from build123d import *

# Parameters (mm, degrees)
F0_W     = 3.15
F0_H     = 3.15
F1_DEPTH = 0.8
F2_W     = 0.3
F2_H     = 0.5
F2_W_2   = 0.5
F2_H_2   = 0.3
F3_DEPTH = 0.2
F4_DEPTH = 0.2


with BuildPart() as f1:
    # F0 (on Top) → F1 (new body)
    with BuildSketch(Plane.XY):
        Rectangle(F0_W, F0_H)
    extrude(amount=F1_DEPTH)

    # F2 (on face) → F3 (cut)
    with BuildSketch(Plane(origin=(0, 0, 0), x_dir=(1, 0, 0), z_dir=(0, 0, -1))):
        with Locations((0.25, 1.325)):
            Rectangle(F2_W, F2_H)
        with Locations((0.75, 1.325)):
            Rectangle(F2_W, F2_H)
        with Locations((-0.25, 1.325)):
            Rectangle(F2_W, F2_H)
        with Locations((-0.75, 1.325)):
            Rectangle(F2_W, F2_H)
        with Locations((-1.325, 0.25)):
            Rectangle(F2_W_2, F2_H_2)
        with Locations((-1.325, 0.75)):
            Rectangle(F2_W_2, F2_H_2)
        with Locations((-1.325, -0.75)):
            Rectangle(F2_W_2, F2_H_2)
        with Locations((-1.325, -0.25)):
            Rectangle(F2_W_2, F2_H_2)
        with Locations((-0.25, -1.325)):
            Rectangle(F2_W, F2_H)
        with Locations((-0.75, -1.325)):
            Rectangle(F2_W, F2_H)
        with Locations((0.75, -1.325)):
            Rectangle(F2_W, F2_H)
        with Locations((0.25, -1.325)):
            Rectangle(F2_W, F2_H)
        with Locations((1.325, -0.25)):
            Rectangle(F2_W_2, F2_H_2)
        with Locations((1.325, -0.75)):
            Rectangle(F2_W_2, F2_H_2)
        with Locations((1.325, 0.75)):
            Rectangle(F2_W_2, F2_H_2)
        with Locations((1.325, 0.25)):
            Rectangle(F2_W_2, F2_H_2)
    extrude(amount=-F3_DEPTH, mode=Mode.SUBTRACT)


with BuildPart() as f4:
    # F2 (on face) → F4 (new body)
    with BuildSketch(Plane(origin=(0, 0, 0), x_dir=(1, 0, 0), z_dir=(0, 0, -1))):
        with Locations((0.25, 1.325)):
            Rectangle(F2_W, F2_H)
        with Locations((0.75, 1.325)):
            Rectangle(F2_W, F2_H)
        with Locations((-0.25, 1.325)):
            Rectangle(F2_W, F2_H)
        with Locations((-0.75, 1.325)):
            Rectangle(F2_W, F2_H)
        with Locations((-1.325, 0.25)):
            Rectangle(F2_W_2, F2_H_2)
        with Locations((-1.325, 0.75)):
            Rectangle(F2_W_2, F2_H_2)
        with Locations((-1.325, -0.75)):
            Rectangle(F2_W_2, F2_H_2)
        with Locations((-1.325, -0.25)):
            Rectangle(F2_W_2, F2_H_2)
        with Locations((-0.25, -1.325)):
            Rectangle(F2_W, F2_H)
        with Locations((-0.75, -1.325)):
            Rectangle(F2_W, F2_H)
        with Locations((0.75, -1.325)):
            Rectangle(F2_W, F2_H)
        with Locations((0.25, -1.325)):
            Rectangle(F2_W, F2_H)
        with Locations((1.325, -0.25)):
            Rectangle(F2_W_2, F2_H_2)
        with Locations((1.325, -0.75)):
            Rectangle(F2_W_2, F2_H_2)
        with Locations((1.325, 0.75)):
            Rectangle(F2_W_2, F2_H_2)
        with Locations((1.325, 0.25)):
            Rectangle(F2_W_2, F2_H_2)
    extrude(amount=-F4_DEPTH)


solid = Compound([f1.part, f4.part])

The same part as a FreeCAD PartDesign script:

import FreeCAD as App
import Part
import Sketcher

doc = App.newDocument("Part")
body = doc.addObject("PartDesign::Body", "Body")

# Sketch on XY plane
sketch1 = body.newObject("Sketcher::SketchObject", "Sketch")
sketch1.AttachmentSupport = (doc.getObject("XY_Plane"), [""])
sketch1.MapMode = "FlatFace"
sketch1.addGeometry([
    Part.LineSegment(App.Vector(-1.6, 1.6, 0), App.Vector(-1.6, -1.6, 0)),
    Part.LineSegment(App.Vector(-1.6, -1.6, 0), App.Vector(1.6, -1.6, 0)),
    Part.LineSegment(App.Vector(1.6, -1.6, 0), App.Vector(1.6, 1.6, 0)),
    Part.LineSegment(App.Vector(1.6, 1.6, 0), App.Vector(-1.6, 1.6, 0)),
], False)
sketch1.addConstraint([
    Sketcher.Constraint("Coincident", 0, 2, 1, 1),
    Sketcher.Constraint("Coincident", 1, 2, 2, 1),
    Sketcher.Constraint("Coincident", 2, 2, 3, 1),
    Sketcher.Constraint("Coincident", 3, 2, 0, 1),
    Sketcher.Constraint("Vertical", 0),
    Sketcher.Constraint("Horizontal", 1),
    Sketcher.Constraint("Vertical", 2),
    Sketcher.Constraint("Horizontal", 3),
    Sketcher.Constraint("Symmetric", 0, 2, 2, 2, -1, 1),
    Sketcher.Constraint("Equal", 3, 0),
    Sketcher.Constraint("DistanceX", 1, 1, 1, 2, 3.15),
])
pad1 = body.newObject("PartDesign::Pad", "Pad")
pad1.Profile = sketch1
pad1.Length = 0.8

# Sketch on XY plane
sketch2 = body.newObject("Sketcher::SketchObject", "Sketch001")
sketch2.AttachmentSupport = (doc.getObject("XY_Plane"), [""])
sketch2.MapMode = "FlatFace"
sketch2.addGeometry([
    Part.LineSegment(App.Vector(0.1, -1.57, 0), App.Vector(0.1, -1.07, 0)),  # 0
    Part.LineSegment(App.Vector(0.1, -1.07, 0), App.Vector(0.4, -1.07, 0)),  # 1
    Part.LineSegment(App.Vector(0.4, -1.07, 0), App.Vector(0.4, -1.57, 0)),  # 2
    Part.LineSegment(App.Vector(0.4, -1.57, 0), App.Vector(0.1, -1.57, 0)),  # 3
    Part.LineSegment(App.Vector(0.6, -1.57, 0), App.Vector(0.6, -1.07, 0)),  # 4
    Part.LineSegment(App.Vector(0.6, -1.07, 0), App.Vector(0.9, -1.07, 0)),  # 5
    Part.LineSegment(App.Vector(0.9, -1.07, 0), App.Vector(0.9, -1.57, 0)),  # 6
    Part.LineSegment(App.Vector(0.9, -1.57, 0), App.Vector(0.6, -1.57, 0)),  # 7
    Part.LineSegment(App.Vector(-0.4, -1.57, 0), App.Vector(-0.4, -1.07, 0)),  # 8
    Part.LineSegment(App.Vector(-0.4, -1.07, 0), App.Vector(-0.1, -1.07, 0)),  # 9
    Part.LineSegment(App.Vector(-0.1, -1.07, 0), App.Vector(-0.1, -1.57, 0)),  # 10
    Part.LineSegment(App.Vector(-0.1, -1.57, 0), App.Vector(-0.4, -1.57, 0)),  # 11
    Part.LineSegment(App.Vector(-0.9, -1.57, 0), App.Vector(-0.9, -1.07, 0)),  # 12
    Part.LineSegment(App.Vector(-0.9, -1.07, 0), App.Vector(-0.6, -1.07, 0)),  # 13
    Part.LineSegment(App.Vector(-0.6, -1.07, 0), App.Vector(-0.6, -1.57, 0)),  # 14
    Part.LineSegment(App.Vector(-0.6, -1.57, 0), App.Vector(-0.9, -1.57, 0)),  # 15
    Part.LineSegment(App.Vector(-1.57, -0.4, 0), App.Vector(-1.57, -0.1, 0)),  # 16
    Part.LineSegment(App.Vector(-1.57, -0.1, 0), App.Vector(-1.07, -0.1, 0)),  # 17
    Part.LineSegment(App.Vector(-1.07, -0.1, 0), App.Vector(-1.07, -0.4, 0)),  # 18
    Part.LineSegment(App.Vector(-1.07, -0.4, 0), App.Vector(-1.57, -0.4, 0)),  # 19
    Part.LineSegment(App.Vector(-1.57, -0.9, 0), App.Vector(-1.57, -0.6, 0)),  # 20
    Part.LineSegment(App.Vector(-1.57, -0.6, 0), App.Vector(-1.07, -0.6, 0)),  # 21
    Part.LineSegment(App.Vector(-1.07, -0.6, 0), App.Vector(-1.07, -0.9, 0)),  # 22
    Part.LineSegment(App.Vector(-1.07, -0.9, 0), App.Vector(-1.57, -0.9, 0)),  # 23
    Part.LineSegment(App.Vector(-1.57, 0.6, 0), App.Vector(-1.57, 0.9, 0)),  # 24
    Part.LineSegment(App.Vector(-1.57, 0.9, 0), App.Vector(-1.07, 0.9, 0)),  # 25
    Part.LineSegment(App.Vector(-1.07, 0.9, 0), App.Vector(-1.07, 0.6, 0)),  # 26
    Part.LineSegment(App.Vector(-1.07, 0.6, 0), App.Vector(-1.57, 0.6, 0)),  # 27
    Part.LineSegment(App.Vector(-1.57, 0.1, 0), App.Vector(-1.57, 0.4, 0)),  # 28
    Part.LineSegment(App.Vector(-1.57, 0.4, 0), App.Vector(-1.07, 0.4, 0)),  # 29
    Part.LineSegment(App.Vector(-1.07, 0.4, 0), App.Vector(-1.07, 0.1, 0)),  # 30
    Part.LineSegment(App.Vector(-1.07, 0.1, 0), App.Vector(-1.57, 0.1, 0)),  # 31
    Part.LineSegment(App.Vector(-0.4, 1.07, 0), App.Vector(-0.4, 1.57, 0)),  # 32
    Part.LineSegment(App.Vector(-0.4, 1.57, 0), App.Vector(-0.1, 1.57, 0)),  # 33
    Part.LineSegment(App.Vector(-0.1, 1.57, 0), App.Vector(-0.1, 1.07, 0)),  # 34
    Part.LineSegment(App.Vector(-0.1, 1.07, 0), App.Vector(-0.4, 1.07, 0)),  # 35
    Part.LineSegment(App.Vector(-0.9, 1.07, 0), App.Vector(-0.9, 1.57, 0)),  # 36
    Part.LineSegment(App.Vector(-0.9, 1.57, 0), App.Vector(-0.6, 1.57, 0)),  # 37
    Part.LineSegment(App.Vector(-0.6, 1.57, 0), App.Vector(-0.6, 1.07, 0)),  # 38
    Part.LineSegment(App.Vector(-0.6, 1.07, 0), App.Vector(-0.9, 1.07, 0)),  # 39
    Part.LineSegment(App.Vector(0.6, 1.07, 0), App.Vector(0.6, 1.57, 0)),  # 40
    Part.LineSegment(App.Vector(0.6, 1.57, 0), App.Vector(0.9, 1.57, 0)),  # 41
    Part.LineSegment(App.Vector(0.9, 1.57, 0), App.Vector(0.9, 1.07, 0)),  # 42
    Part.LineSegment(App.Vector(0.9, 1.07, 0), App.Vector(0.6, 1.07, 0)),  # 43
    Part.LineSegment(App.Vector(0.1, 1.07, 0), App.Vector(0.1, 1.57, 0)),  # 44
    Part.LineSegment(App.Vector(0.1, 1.57, 0), App.Vector(0.4, 1.57, 0)),  # 45
    Part.LineSegment(App.Vector(0.4, 1.57, 0), App.Vector(0.4, 1.07, 0)),  # 46
    Part.LineSegment(App.Vector(0.4, 1.07, 0), App.Vector(0.1, 1.07, 0)),  # 47
    Part.LineSegment(App.Vector(1.07, 0.1, 0), App.Vector(1.07, 0.4, 0)),  # 48
    Part.LineSegment(App.Vector(1.07, 0.4, 0), App.Vector(1.57, 0.4, 0)),  # 49
    Part.LineSegment(App.Vector(1.57, 0.4, 0), App.Vector(1.57, 0.1, 0)),  # 50
    Part.LineSegment(App.Vector(1.57, 0.1, 0), App.Vector(1.07, 0.1, 0)),  # 51
    Part.LineSegment(App.Vector(1.07, 0.6, 0), App.Vector(1.07, 0.9, 0)),  # 52
    Part.LineSegment(App.Vector(1.07, 0.9, 0), App.Vector(1.57, 0.9, 0)),  # 53
    Part.LineSegment(App.Vector(1.57, 0.9, 0), App.Vector(1.57, 0.6, 0)),  # 54
    Part.LineSegment(App.Vector(1.57, 0.6, 0), App.Vector(1.07, 0.6, 0)),  # 55
    Part.LineSegment(App.Vector(1.07, -0.9, 0), App.Vector(1.07, -0.6, 0)),  # 56
    Part.LineSegment(App.Vector(1.07, -0.6, 0), App.Vector(1.57, -0.6, 0)),  # 57
    Part.LineSegment(App.Vector(1.57, -0.6, 0), App.Vector(1.57, -0.9, 0)),  # 58
    Part.LineSegment(App.Vector(1.57, -0.9, 0), App.Vector(1.07, -0.9, 0)),  # 59
    Part.LineSegment(App.Vector(1.07, -0.4, 0), App.Vector(1.07, -0.1, 0)),  # 60
    Part.LineSegment(App.Vector(1.07, -0.1, 0), App.Vector(1.57, -0.1, 0)),  # 61
    Part.LineSegment(App.Vector(1.57, -0.1, 0), App.Vector(1.57, -0.4, 0)),  # 62
    Part.LineSegment(App.Vector(1.57, -0.4, 0), App.Vector(1.07, -0.4, 0)),  # 63
], False)
sketch2.addConstraint([
    Sketcher.Constraint("Coincident", 0, 2, 1, 1),
    Sketcher.Constraint("Coincident", 1, 2, 2, 1),
    Sketcher.Constraint("Coincident", 2, 2, 3, 1),
    Sketcher.Constraint("Coincident", 3, 2, 0, 1),
    Sketcher.Constraint("Coincident", 4, 2, 5, 1),
    Sketcher.Constraint("Coincident", 5, 2, 6, 1),
    Sketcher.Constraint("Coincident", 6, 2, 7, 1),
    Sketcher.Constraint("Coincident", 7, 2, 4, 1),
    Sketcher.Constraint("Coincident", 8, 2, 9, 1),
    Sketcher.Constraint("Coincident", 9, 2, 10, 1),
    Sketcher.Constraint("Coincident", 10, 2, 11, 1),
    Sketcher.Constraint("Coincident", 11, 2, 8, 1),
    Sketcher.Constraint("Coincident", 12, 2, 13, 1),
    Sketcher.Constraint("Coincident", 13, 2, 14, 1),
    Sketcher.Constraint("Coincident", 14, 2, 15, 1),
    Sketcher.Constraint("Coincident", 15, 2, 12, 1),
    Sketcher.Constraint("Coincident", 16, 2, 17, 1),
    Sketcher.Constraint("Coincident", 17, 2, 18, 1),
    Sketcher.Constraint("Coincident", 18, 2, 19, 1),
    Sketcher.Constraint("Coincident", 19, 2, 16, 1),
    Sketcher.Constraint("Coincident", 20, 2, 21, 1),
    Sketcher.Constraint("Coincident", 21, 2, 22, 1),
    Sketcher.Constraint("Coincident", 22, 2, 23, 1),
    Sketcher.Constraint("Coincident", 23, 2, 20, 1),
    Sketcher.Constraint("Coincident", 24, 2, 25, 1),
    Sketcher.Constraint("Coincident", 25, 2, 26, 1),
    Sketcher.Constraint("Coincident", 26, 2, 27, 1),
    Sketcher.Constraint("Coincident", 27, 2, 24, 1),
    Sketcher.Constraint("Coincident", 28, 2, 29, 1),
    Sketcher.Constraint("Coincident", 29, 2, 30, 1),
    Sketcher.Constraint("Coincident", 30, 2, 31, 1),
    Sketcher.Constraint("Coincident", 31, 2, 28, 1),
    Sketcher.Constraint("Coincident", 32, 2, 33, 1),
    Sketcher.Constraint("Coincident", 33, 2, 34, 1),
    Sketcher.Constraint("Coincident", 34, 2, 35, 1),
    Sketcher.Constraint("Coincident", 35, 2, 32, 1),
    Sketcher.Constraint("Coincident", 36, 2, 37, 1),
    Sketcher.Constraint("Coincident", 37, 2, 38, 1),
    Sketcher.Constraint("Coincident", 38, 2, 39, 1),
    Sketcher.Constraint("Coincident", 39, 2, 36, 1),
    Sketcher.Constraint("Coincident", 40, 2, 41, 1),
    Sketcher.Constraint("Coincident", 41, 2, 42, 1),
    Sketcher.Constraint("Coincident", 42, 2, 43, 1),
    Sketcher.Constraint("Coincident", 43, 2, 40, 1),
    Sketcher.Constraint("Coincident", 44, 2, 45, 1),
    Sketcher.Constraint("Coincident", 45, 2, 46, 1),
    Sketcher.Constraint("Coincident", 46, 2, 47, 1),
    Sketcher.Constraint("Coincident", 47, 2, 44, 1),
    Sketcher.Constraint("Coincident", 48, 2, 49, 1),
    Sketcher.Constraint("Coincident", 49, 2, 50, 1),
    Sketcher.Constraint("Coincident", 50, 2, 51, 1),
    Sketcher.Constraint("Coincident", 51, 2, 48, 1),
    Sketcher.Constraint("Coincident", 52, 2, 53, 1),
    Sketcher.Constraint("Coincident", 53, 2, 54, 1),
    Sketcher.Constraint("Coincident", 54, 2, 55, 1),
    Sketcher.Constraint("Coincident", 55, 2, 52, 1),
    Sketcher.Constraint("Coincident", 56, 2, 57, 1),
    Sketcher.Constraint("Coincident", 57, 2, 58, 1),
    Sketcher.Constraint("Coincident", 58, 2, 59, 1),
    Sketcher.Constraint("Coincident", 59, 2, 56, 1),
    Sketcher.Constraint("Coincident", 60, 2, 61, 1),
    Sketcher.Constraint("Coincident", 61, 2, 62, 1),
    Sketcher.Constraint("Coincident", 62, 2, 63, 1),
    Sketcher.Constraint("Coincident", 63, 2, 60, 1),
    Sketcher.Constraint("Vertical", 0),
    Sketcher.Constraint("Horizontal", 1),
    Sketcher.Constraint("Vertical", 2),
    Sketcher.Constraint("Horizontal", 3),
    Sketcher.Constraint("Vertical", 4),
    Sketcher.Constraint("Horizontal", 5),
    Sketcher.Constraint("Vertical", 6),
    Sketcher.Constraint("Horizontal", 7),
    Sketcher.Constraint("Vertical", 8),
    Sketcher.Constraint("Horizontal", 9),
    Sketcher.Constraint("Vertical", 10),
    Sketcher.Constraint("Horizontal", 11),
    Sketcher.Constraint("Vertical", 12),
    Sketcher.Constraint("Horizontal", 13),
    Sketcher.Constraint("Vertical", 14),
    Sketcher.Constraint("Horizontal", 15),
    Sketcher.Constraint("Vertical", 16),
    Sketcher.Constraint("Horizontal", 17),
    Sketcher.Constraint("Vertical", 18),
    Sketcher.Constraint("Horizontal", 19),
    Sketcher.Constraint("Vertical", 20),
    Sketcher.Constraint("Horizontal", 21),
    Sketcher.Constraint("Vertical", 22),
    Sketcher.Constraint("Horizontal", 23),
    Sketcher.Constraint("Vertical", 24),
    Sketcher.Constraint("Horizontal", 25),
    Sketcher.Constraint("Vertical", 26),
    Sketcher.Constraint("Horizontal", 27),
    Sketcher.Constraint("Vertical", 28),
    Sketcher.Constraint("Horizontal", 29),
    Sketcher.Constraint("Vertical", 30),
    Sketcher.Constraint("Horizontal", 31),
    Sketcher.Constraint("Vertical", 32),
    Sketcher.Constraint("Horizontal", 33),
    Sketcher.Constraint("Vertical", 34),
    Sketcher.Constraint("Horizontal", 35),
    Sketcher.Constraint("Vertical", 36),
    Sketcher.Constraint("Horizontal", 37),
    Sketcher.Constraint("Vertical", 38),
    Sketcher.Constraint("Horizontal", 39),
    Sketcher.Constraint("Vertical", 40),
    Sketcher.Constraint("Horizontal", 41),
    Sketcher.Constraint("Vertical", 42),
    Sketcher.Constraint("Horizontal", 43),
    Sketcher.Constraint("Vertical", 44),
    Sketcher.Constraint("Horizontal", 45),
    Sketcher.Constraint("Vertical", 46),
    Sketcher.Constraint("Horizontal", 47),
    Sketcher.Constraint("Vertical", 48),
    Sketcher.Constraint("Horizontal", 49),
    Sketcher.Constraint("Vertical", 50),
    Sketcher.Constraint("Horizontal", 51),
    Sketcher.Constraint("Vertical", 52),
    Sketcher.Constraint("Horizontal", 53),
    Sketcher.Constraint("Vertical", 54),
    Sketcher.Constraint("Horizontal", 55),
    Sketcher.Constraint("Vertical", 56),
    Sketcher.Constraint("Horizontal", 57),
    Sketcher.Constraint("Vertical", 58),
    Sketcher.Constraint("Horizontal", 59),
    Sketcher.Constraint("Vertical", 60),
    Sketcher.Constraint("Horizontal", 61),
    Sketcher.Constraint("Vertical", 62),
    Sketcher.Constraint("Horizontal", 63),
    Sketcher.Constraint("Symmetric", 2, 2, 32, 2, -1, 1),
    Sketcher.Constraint("Symmetric", 0, 2, 34, 2, -1, 1),
    Sketcher.Constraint("Symmetric", 6, 2, 36, 2, -1, 1),
    Sketcher.Constraint("Symmetric", 4, 2, 38, 2, -1, 1),
    Sketcher.Constraint("Symmetric", 14, 2, 40, 2, -1, 1),
    Sketcher.Constraint("Symmetric", 12, 2, 42, 2, -1, 1),
    Sketcher.Constraint("Symmetric", 10, 2, 44, 2, -1, 1),
    Sketcher.Constraint("Symmetric", 8, 2, 46, 2, -1, 1),
    Sketcher.Constraint("Symmetric", 18, 2, 48, 2, -1, 1),
    Sketcher.Constraint("Symmetric", 16, 2, 50, 2, -1, 1),
    Sketcher.Constraint("Symmetric", 22, 2, 52, 2, -1, 1),
    Sketcher.Constraint("Symmetric", 20, 2, 54, 2, -1, 1),
    Sketcher.Constraint("Symmetric", 26, 2, 56, 2, -1, 1),
    Sketcher.Constraint("Symmetric", 24, 2, 58, 2, -1, 1),
    Sketcher.Constraint("Symmetric", 30, 2, 60, 2, -1, 1),
    Sketcher.Constraint("Symmetric", 28, 2, 62, 2, -1, 1),
    Sketcher.Constraint("Symmetric", 1, 2, 8, 2, -2),
    Sketcher.Constraint("Symmetric", 3, 2, 10, 2, -2),
    Sketcher.Constraint("Symmetric", 5, 2, 12, 2, -2),
    Sketcher.Constraint("Symmetric", 7, 2, 14, 2, -2),
    Sketcher.Constraint("Symmetric", 29, 2, 48, 2, -2),
    Sketcher.Constraint("Symmetric", 31, 2, 50, 2, -2),
    Sketcher.Constraint("Symmetric", 25, 2, 52, 2, -2),
    Sketcher.Constraint("Symmetric", 27, 2, 54, 2, -2),
    Sketcher.Constraint("Horizontal", 1, 2, 4, 2),
    Sketcher.Constraint("Horizontal", 3, 2, 6, 2),
    Sketcher.Constraint("Vertical", 19, 2, 20, 2),
    Sketcher.Constraint("Vertical", 18, 2, 21, 2),
    Sketcher.Constraint("Equal", 3, 5),
    Sketcher.Constraint("Equal", 63, 0),
    Sketcher.Constraint("Equal", 47, 16),
    Sketcher.Constraint("Equal", 18, 20),
    Sketcher.Constraint("DistanceX", 1, 1, 1, 2, 0.3),
    Sketcher.Constraint("DistanceX", 17, 1, 17, 2, 0.5),
    Sketcher.Constraint("DistanceX", -1, 1, 0, 2, 0.1),
    Sketcher.Constraint("DistanceX", -1, 1, 4, 2, 0.6),
    Sketcher.Constraint("DistanceY", 16, 2, -1, 1, 0.1),
    Sketcher.Constraint("DistanceY", 20, 2, -1, 1, 0.6),
    Sketcher.Constraint("DistanceY", 0, 2, -1, 1, 1.075),
    Sketcher.Constraint("DistanceX", 16, 2, -1, 1, 1.575),
])
pocket1 = body.newObject("PartDesign::Pocket", "Pocket")
pocket1.Profile = sketch2
pocket1.Length = 0.2
pocket1.Reversed = True
body2 = doc.addObject("PartDesign::Body", "Body001")
body2.AllowCompound = True

# Sketch on XY plane
sketch3 = body2.newObject("Sketcher::SketchObject", "Sketch002")
sketch3.AttachmentSupport = (doc.getObject("XY_Plane001"), [""])
sketch3.MapMode = "FlatFace"
sketch3.addGeometry([
    Part.LineSegment(App.Vector(0.1, -1.57, 0), App.Vector(0.1, -1.07, 0)),  # 0
    Part.LineSegment(App.Vector(0.1, -1.07, 0), App.Vector(0.4, -1.07, 0)),  # 1
    Part.LineSegment(App.Vector(0.4, -1.07, 0), App.Vector(0.4, -1.57, 0)),  # 2
    Part.LineSegment(App.Vector(0.4, -1.57, 0), App.Vector(0.1, -1.57, 0)),  # 3
    Part.LineSegment(App.Vector(0.6, -1.57, 0), App.Vector(0.6, -1.07, 0)),  # 4
    Part.LineSegment(App.Vector(0.6, -1.07, 0), App.Vector(0.9, -1.07, 0)),  # 5
    Part.LineSegment(App.Vector(0.9, -1.07, 0), App.Vector(0.9, -1.57, 0)),  # 6
    Part.LineSegment(App.Vector(0.9, -1.57, 0), App.Vector(0.6, -1.57, 0)),  # 7
    Part.LineSegment(App.Vector(-0.4, -1.57, 0), App.Vector(-0.4, -1.07, 0)),  # 8
    Part.LineSegment(App.Vector(-0.4, -1.07, 0), App.Vector(-0.1, -1.07, 0)),  # 9
    Part.LineSegment(App.Vector(-0.1, -1.07, 0), App.Vector(-0.1, -1.57, 0)),  # 10
    Part.LineSegment(App.Vector(-0.1, -1.57, 0), App.Vector(-0.4, -1.57, 0)),  # 11
    Part.LineSegment(App.Vector(-0.9, -1.57, 0), App.Vector(-0.9, -1.07, 0)),  # 12
    Part.LineSegment(App.Vector(-0.9, -1.07, 0), App.Vector(-0.6, -1.07, 0)),  # 13
    Part.LineSegment(App.Vector(-0.6, -1.07, 0), App.Vector(-0.6, -1.57, 0)),  # 14
    Part.LineSegment(App.Vector(-0.6, -1.57, 0), App.Vector(-0.9, -1.57, 0)),  # 15
    Part.LineSegment(App.Vector(-1.57, -0.4, 0), App.Vector(-1.57, -0.1, 0)),  # 16
    Part.LineSegment(App.Vector(-1.57, -0.1, 0), App.Vector(-1.07, -0.1, 0)),  # 17
    Part.LineSegment(App.Vector(-1.07, -0.1, 0), App.Vector(-1.07, -0.4, 0)),  # 18
    Part.LineSegment(App.Vector(-1.07, -0.4, 0), App.Vector(-1.57, -0.4, 0)),  # 19
    Part.LineSegment(App.Vector(-1.57, -0.9, 0), App.Vector(-1.57, -0.6, 0)),  # 20
    Part.LineSegment(App.Vector(-1.57, -0.6, 0), App.Vector(-1.07, -0.6, 0)),  # 21
    Part.LineSegment(App.Vector(-1.07, -0.6, 0), App.Vector(-1.07, -0.9, 0)),  # 22
    Part.LineSegment(App.Vector(-1.07, -0.9, 0), App.Vector(-1.57, -0.9, 0)),  # 23
    Part.LineSegment(App.Vector(-1.57, 0.6, 0), App.Vector(-1.57, 0.9, 0)),  # 24
    Part.LineSegment(App.Vector(-1.57, 0.9, 0), App.Vector(-1.07, 0.9, 0)),  # 25
    Part.LineSegment(App.Vector(-1.07, 0.9, 0), App.Vector(-1.07, 0.6, 0)),  # 26
    Part.LineSegment(App.Vector(-1.07, 0.6, 0), App.Vector(-1.57, 0.6, 0)),  # 27
    Part.LineSegment(App.Vector(-1.57, 0.1, 0), App.Vector(-1.57, 0.4, 0)),  # 28
    Part.LineSegment(App.Vector(-1.57, 0.4, 0), App.Vector(-1.07, 0.4, 0)),  # 29
    Part.LineSegment(App.Vector(-1.07, 0.4, 0), App.Vector(-1.07, 0.1, 0)),  # 30
    Part.LineSegment(App.Vector(-1.07, 0.1, 0), App.Vector(-1.57, 0.1, 0)),  # 31
    Part.LineSegment(App.Vector(-0.4, 1.07, 0), App.Vector(-0.4, 1.57, 0)),  # 32
    Part.LineSegment(App.Vector(-0.4, 1.57, 0), App.Vector(-0.1, 1.57, 0)),  # 33
    Part.LineSegment(App.Vector(-0.1, 1.57, 0), App.Vector(-0.1, 1.07, 0)),  # 34
    Part.LineSegment(App.Vector(-0.1, 1.07, 0), App.Vector(-0.4, 1.07, 0)),  # 35
    Part.LineSegment(App.Vector(-0.9, 1.07, 0), App.Vector(-0.9, 1.57, 0)),  # 36
    Part.LineSegment(App.Vector(-0.9, 1.57, 0), App.Vector(-0.6, 1.57, 0)),  # 37
    Part.LineSegment(App.Vector(-0.6, 1.57, 0), App.Vector(-0.6, 1.07, 0)),  # 38
    Part.LineSegment(App.Vector(-0.6, 1.07, 0), App.Vector(-0.9, 1.07, 0)),  # 39
    Part.LineSegment(App.Vector(0.6, 1.07, 0), App.Vector(0.6, 1.57, 0)),  # 40
    Part.LineSegment(App.Vector(0.6, 1.57, 0), App.Vector(0.9, 1.57, 0)),  # 41
    Part.LineSegment(App.Vector(0.9, 1.57, 0), App.Vector(0.9, 1.07, 0)),  # 42
    Part.LineSegment(App.Vector(0.9, 1.07, 0), App.Vector(0.6, 1.07, 0)),  # 43
    Part.LineSegment(App.Vector(0.1, 1.07, 0), App.Vector(0.1, 1.57, 0)),  # 44
    Part.LineSegment(App.Vector(0.1, 1.57, 0), App.Vector(0.4, 1.57, 0)),  # 45
    Part.LineSegment(App.Vector(0.4, 1.57, 0), App.Vector(0.4, 1.07, 0)),  # 46
    Part.LineSegment(App.Vector(0.4, 1.07, 0), App.Vector(0.1, 1.07, 0)),  # 47
    Part.LineSegment(App.Vector(1.07, 0.1, 0), App.Vector(1.07, 0.4, 0)),  # 48
    Part.LineSegment(App.Vector(1.07, 0.4, 0), App.Vector(1.57, 0.4, 0)),  # 49
    Part.LineSegment(App.Vector(1.57, 0.4, 0), App.Vector(1.57, 0.1, 0)),  # 50
    Part.LineSegment(App.Vector(1.57, 0.1, 0), App.Vector(1.07, 0.1, 0)),  # 51
    Part.LineSegment(App.Vector(1.07, 0.6, 0), App.Vector(1.07, 0.9, 0)),  # 52
    Part.LineSegment(App.Vector(1.07, 0.9, 0), App.Vector(1.57, 0.9, 0)),  # 53
    Part.LineSegment(App.Vector(1.57, 0.9, 0), App.Vector(1.57, 0.6, 0)),  # 54
    Part.LineSegment(App.Vector(1.57, 0.6, 0), App.Vector(1.07, 0.6, 0)),  # 55
    Part.LineSegment(App.Vector(1.07, -0.9, 0), App.Vector(1.07, -0.6, 0)),  # 56
    Part.LineSegment(App.Vector(1.07, -0.6, 0), App.Vector(1.57, -0.6, 0)),  # 57
    Part.LineSegment(App.Vector(1.57, -0.6, 0), App.Vector(1.57, -0.9, 0)),  # 58
    Part.LineSegment(App.Vector(1.57, -0.9, 0), App.Vector(1.07, -0.9, 0)),  # 59
    Part.LineSegment(App.Vector(1.07, -0.4, 0), App.Vector(1.07, -0.1, 0)),  # 60
    Part.LineSegment(App.Vector(1.07, -0.1, 0), App.Vector(1.57, -0.1, 0)),  # 61
    Part.LineSegment(App.Vector(1.57, -0.1, 0), App.Vector(1.57, -0.4, 0)),  # 62
    Part.LineSegment(App.Vector(1.57, -0.4, 0), App.Vector(1.07, -0.4, 0)),  # 63
], False)
sketch3.addConstraint([
    Sketcher.Constraint("Coincident", 0, 2, 1, 1),
    Sketcher.Constraint("Coincident", 1, 2, 2, 1),
    Sketcher.Constraint("Coincident", 2, 2, 3, 1),
    Sketcher.Constraint("Coincident", 3, 2, 0, 1),
    Sketcher.Constraint("Coincident", 4, 2, 5, 1),
    Sketcher.Constraint("Coincident", 5, 2, 6, 1),
    Sketcher.Constraint("Coincident", 6, 2, 7, 1),
    Sketcher.Constraint("Coincident", 7, 2, 4, 1),
    Sketcher.Constraint("Coincident", 8, 2, 9, 1),
    Sketcher.Constraint("Coincident", 9, 2, 10, 1),
    Sketcher.Constraint("Coincident", 10, 2, 11, 1),
    Sketcher.Constraint("Coincident", 11, 2, 8, 1),
    Sketcher.Constraint("Coincident", 12, 2, 13, 1),
    Sketcher.Constraint("Coincident", 13, 2, 14, 1),
    Sketcher.Constraint("Coincident", 14, 2, 15, 1),
    Sketcher.Constraint("Coincident", 15, 2, 12, 1),
    Sketcher.Constraint("Coincident", 16, 2, 17, 1),
    Sketcher.Constraint("Coincident", 17, 2, 18, 1),
    Sketcher.Constraint("Coincident", 18, 2, 19, 1),
    Sketcher.Constraint("Coincident", 19, 2, 16, 1),
    Sketcher.Constraint("Coincident", 20, 2, 21, 1),
    Sketcher.Constraint("Coincident", 21, 2, 22, 1),
    Sketcher.Constraint("Coincident", 22, 2, 23, 1),
    Sketcher.Constraint("Coincident", 23, 2, 20, 1),
    Sketcher.Constraint("Coincident", 24, 2, 25, 1),
    Sketcher.Constraint("Coincident", 25, 2, 26, 1),
    Sketcher.Constraint("Coincident", 26, 2, 27, 1),
    Sketcher.Constraint("Coincident", 27, 2, 24, 1),
    Sketcher.Constraint("Coincident", 28, 2, 29, 1),
    Sketcher.Constraint("Coincident", 29, 2, 30, 1),
    Sketcher.Constraint("Coincident", 30, 2, 31, 1),
    Sketcher.Constraint("Coincident", 31, 2, 28, 1),
    Sketcher.Constraint("Coincident", 32, 2, 33, 1),
    Sketcher.Constraint("Coincident", 33, 2, 34, 1),
    Sketcher.Constraint("Coincident", 34, 2, 35, 1),
    Sketcher.Constraint("Coincident", 35, 2, 32, 1),
    Sketcher.Constraint("Coincident", 36, 2, 37, 1),
    Sketcher.Constraint("Coincident", 37, 2, 38, 1),
    Sketcher.Constraint("Coincident", 38, 2, 39, 1),
    Sketcher.Constraint("Coincident", 39, 2, 36, 1),
    Sketcher.Constraint("Coincident", 40, 2, 41, 1),
    Sketcher.Constraint("Coincident", 41, 2, 42, 1),
    Sketcher.Constraint("Coincident", 42, 2, 43, 1),
    Sketcher.Constraint("Coincident", 43, 2, 40, 1),
    Sketcher.Constraint("Coincident", 44, 2, 45, 1),
    Sketcher.Constraint("Coincident", 45, 2, 46, 1),
    Sketcher.Constraint("Coincident", 46, 2, 47, 1),
    Sketcher.Constraint("Coincident", 47, 2, 44, 1),
    Sketcher.Constraint("Coincident", 48, 2, 49, 1),
    Sketcher.Constraint("Coincident", 49, 2, 50, 1),
    Sketcher.Constraint("Coincident", 50, 2, 51, 1),
    Sketcher.Constraint("Coincident", 51, 2, 48, 1),
    Sketcher.Constraint("Coincident", 52, 2, 53, 1),
    Sketcher.Constraint("Coincident", 53, 2, 54, 1),
    Sketcher.Constraint("Coincident", 54, 2, 55, 1),
    Sketcher.Constraint("Coincident", 55, 2, 52, 1),
    Sketcher.Constraint("Coincident", 56, 2, 57, 1),
    Sketcher.Constraint("Coincident", 57, 2, 58, 1),
    Sketcher.Constraint("Coincident", 58, 2, 59, 1),
    Sketcher.Constraint("Coincident", 59, 2, 56, 1),
    Sketcher.Constraint("Coincident", 60, 2, 61, 1),
    Sketcher.Constraint("Coincident", 61, 2, 62, 1),
    Sketcher.Constraint("Coincident", 62, 2, 63, 1),
    Sketcher.Constraint("Coincident", 63, 2, 60, 1),
    Sketcher.Constraint("Vertical", 0),
    Sketcher.Constraint("Horizontal", 1),
    Sketcher.Constraint("Vertical", 2),
    Sketcher.Constraint("Horizontal", 3),
    Sketcher.Constraint("Vertical", 4),
    Sketcher.Constraint("Horizontal", 5),
    Sketcher.Constraint("Vertical", 6),
    Sketcher.Constraint("Horizontal", 7),
    Sketcher.Constraint("Vertical", 8),
    Sketcher.Constraint("Horizontal", 9),
    Sketcher.Constraint("Vertical", 10),
    Sketcher.Constraint("Horizontal", 11),
    Sketcher.Constraint("Vertical", 12),
    Sketcher.Constraint("Horizontal", 13),
    Sketcher.Constraint("Vertical", 14),
    Sketcher.Constraint("Horizontal", 15),
    Sketcher.Constraint("Vertical", 16),
    Sketcher.Constraint("Horizontal", 17),
    Sketcher.Constraint("Vertical", 18),
    Sketcher.Constraint("Horizontal", 19),
    Sketcher.Constraint("Vertical", 20),
    Sketcher.Constraint("Horizontal", 21),
    Sketcher.Constraint("Vertical", 22),
    Sketcher.Constraint("Horizontal", 23),
    Sketcher.Constraint("Vertical", 24),
    Sketcher.Constraint("Horizontal", 25),
    Sketcher.Constraint("Vertical", 26),
    Sketcher.Constraint("Horizontal", 27),
    Sketcher.Constraint("Vertical", 28),
    Sketcher.Constraint("Horizontal", 29),
    Sketcher.Constraint("Vertical", 30),
    Sketcher.Constraint("Horizontal", 31),
    Sketcher.Constraint("Vertical", 32),
    Sketcher.Constraint("Horizontal", 33),
    Sketcher.Constraint("Vertical", 34),
    Sketcher.Constraint("Horizontal", 35),
    Sketcher.Constraint("Vertical", 36),
    Sketcher.Constraint("Horizontal", 37),
    Sketcher.Constraint("Vertical", 38),
    Sketcher.Constraint("Horizontal", 39),
    Sketcher.Constraint("Vertical", 40),
    Sketcher.Constraint("Horizontal", 41),
    Sketcher.Constraint("Vertical", 42),
    Sketcher.Constraint("Horizontal", 43),
    Sketcher.Constraint("Vertical", 44),
    Sketcher.Constraint("Horizontal", 45),
    Sketcher.Constraint("Vertical", 46),
    Sketcher.Constraint("Horizontal", 47),
    Sketcher.Constraint("Vertical", 48),
    Sketcher.Constraint("Horizontal", 49),
    Sketcher.Constraint("Vertical", 50),
    Sketcher.Constraint("Horizontal", 51),
    Sketcher.Constraint("Vertical", 52),
    Sketcher.Constraint("Horizontal", 53),
    Sketcher.Constraint("Vertical", 54),
    Sketcher.Constraint("Horizontal", 55),
    Sketcher.Constraint("Vertical", 56),
    Sketcher.Constraint("Horizontal", 57),
    Sketcher.Constraint("Vertical", 58),
    Sketcher.Constraint("Horizontal", 59),
    Sketcher.Constraint("Vertical", 60),
    Sketcher.Constraint("Horizontal", 61),
    Sketcher.Constraint("Vertical", 62),
    Sketcher.Constraint("Horizontal", 63),
    Sketcher.Constraint("Symmetric", 2, 2, 32, 2, -1, 1),
    Sketcher.Constraint("Symmetric", 0, 2, 34, 2, -1, 1),
    Sketcher.Constraint("Symmetric", 6, 2, 36, 2, -1, 1),
    Sketcher.Constraint("Symmetric", 4, 2, 38, 2, -1, 1),
    Sketcher.Constraint("Symmetric", 14, 2, 40, 2, -1, 1),
    Sketcher.Constraint("Symmetric", 12, 2, 42, 2, -1, 1),
    Sketcher.Constraint("Symmetric", 10, 2, 44, 2, -1, 1),
    Sketcher.Constraint("Symmetric", 8, 2, 46, 2, -1, 1),
    Sketcher.Constraint("Symmetric", 18, 2, 48, 2, -1, 1),
    Sketcher.Constraint("Symmetric", 16, 2, 50, 2, -1, 1),
    Sketcher.Constraint("Symmetric", 22, 2, 52, 2, -1, 1),
    Sketcher.Constraint("Symmetric", 20, 2, 54, 2, -1, 1),
    Sketcher.Constraint("Symmetric", 26, 2, 56, 2, -1, 1),
    Sketcher.Constraint("Symmetric", 24, 2, 58, 2, -1, 1),
    Sketcher.Constraint("Symmetric", 30, 2, 60, 2, -1, 1),
    Sketcher.Constraint("Symmetric", 28, 2, 62, 2, -1, 1),
    Sketcher.Constraint("Symmetric", 1, 2, 8, 2, -2),
    Sketcher.Constraint("Symmetric", 3, 2, 10, 2, -2),
    Sketcher.Constraint("Symmetric", 5, 2, 12, 2, -2),
    Sketcher.Constraint("Symmetric", 7, 2, 14, 2, -2),
    Sketcher.Constraint("Symmetric", 29, 2, 48, 2, -2),
    Sketcher.Constraint("Symmetric", 31, 2, 50, 2, -2),
    Sketcher.Constraint("Symmetric", 25, 2, 52, 2, -2),
    Sketcher.Constraint("Symmetric", 27, 2, 54, 2, -2),
    Sketcher.Constraint("Horizontal", 1, 2, 4, 2),
    Sketcher.Constraint("Horizontal", 3, 2, 6, 2),
    Sketcher.Constraint("Vertical", 19, 2, 20, 2),
    Sketcher.Constraint("Vertical", 18, 2, 21, 2),
    Sketcher.Constraint("Equal", 3, 5),
    Sketcher.Constraint("Equal", 63, 0),
    Sketcher.Constraint("Equal", 47, 16),
    Sketcher.Constraint("Equal", 18, 20),
    Sketcher.Constraint("DistanceX", 1, 1, 1, 2, 0.3),
    Sketcher.Constraint("DistanceX", 17, 1, 17, 2, 0.5),
    Sketcher.Constraint("DistanceX", -1, 1, 0, 2, 0.1),
    Sketcher.Constraint("DistanceX", -1, 1, 4, 2, 0.6),
    Sketcher.Constraint("DistanceY", 16, 2, -1, 1, 0.1),
    Sketcher.Constraint("DistanceY", 20, 2, -1, 1, 0.6),
    Sketcher.Constraint("DistanceY", 0, 2, -1, 1, 1.075),
    Sketcher.Constraint("DistanceX", 16, 2, -1, 1, 1.575),
])
pad2 = body2.newObject("PartDesign::Pad", "Pad001")
pad2.Profile = sketch3
pad2.Length = 0.2

doc.recompute()
